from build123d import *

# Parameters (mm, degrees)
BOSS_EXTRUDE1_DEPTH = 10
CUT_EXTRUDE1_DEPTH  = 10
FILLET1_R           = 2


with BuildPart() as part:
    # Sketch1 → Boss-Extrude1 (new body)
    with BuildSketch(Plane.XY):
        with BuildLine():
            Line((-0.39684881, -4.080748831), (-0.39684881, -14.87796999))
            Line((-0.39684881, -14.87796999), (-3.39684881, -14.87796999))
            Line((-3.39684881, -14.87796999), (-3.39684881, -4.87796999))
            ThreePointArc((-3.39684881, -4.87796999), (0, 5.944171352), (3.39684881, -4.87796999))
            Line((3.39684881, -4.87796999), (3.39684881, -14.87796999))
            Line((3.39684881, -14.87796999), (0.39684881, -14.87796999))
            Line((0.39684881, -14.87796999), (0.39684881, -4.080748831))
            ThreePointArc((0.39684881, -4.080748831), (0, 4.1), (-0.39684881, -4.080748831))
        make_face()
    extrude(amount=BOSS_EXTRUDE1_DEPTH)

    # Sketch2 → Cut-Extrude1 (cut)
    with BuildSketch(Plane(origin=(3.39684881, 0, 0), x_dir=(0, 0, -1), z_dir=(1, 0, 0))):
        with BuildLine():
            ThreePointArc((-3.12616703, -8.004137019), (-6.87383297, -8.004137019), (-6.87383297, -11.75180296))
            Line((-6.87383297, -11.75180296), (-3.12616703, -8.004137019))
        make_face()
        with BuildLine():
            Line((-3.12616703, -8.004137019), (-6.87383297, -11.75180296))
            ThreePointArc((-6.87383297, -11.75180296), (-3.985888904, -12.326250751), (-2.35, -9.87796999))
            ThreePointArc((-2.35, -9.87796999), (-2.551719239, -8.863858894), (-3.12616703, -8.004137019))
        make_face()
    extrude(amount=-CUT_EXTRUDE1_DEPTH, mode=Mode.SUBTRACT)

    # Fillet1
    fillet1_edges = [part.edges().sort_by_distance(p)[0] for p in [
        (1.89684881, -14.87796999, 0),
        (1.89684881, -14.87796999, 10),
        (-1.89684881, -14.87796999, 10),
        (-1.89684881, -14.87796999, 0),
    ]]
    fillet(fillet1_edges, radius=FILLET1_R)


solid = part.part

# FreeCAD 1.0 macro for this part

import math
import FreeCAD as App
import Part
import Sketcher

V = App.Vector


def edges_at(feature, points):
    """Names of the edges that pass closest to the given points."""
    edges = feature.Shape.Edges
    near = lambda p: min(range(len(edges)), key=lambda i: edges[i].distToShape(Part.Vertex(*p))[0])
    return sorted({f"Edge{near(p) + 1}" for p in points})

doc = App.newDocument("Part")
body = doc.addObject("PartDesign::Body", "Body")

sketch1 = doc.addObject("Sketcher::SketchObject", "Sketch")
body.addObject(sketch1)
sketch1.AttachmentSupport = (doc.XY_Plane, [""])
sketch1.MapMode = "FlatFace"
sketch1.addGeometry([
    Part.LineSegment(V(-0.396849, -14.87797, 0), V(-0.396849, -4.080749, 0)),
    Part.ArcOfCircle(Part.Circle(V(0, 0, 0), V(0, 0, 1), 4.1), math.radians(-84.445508), math.radians(264.445508)),
    Part.LineSegment(V(0.396849, -4.080749, 0), V(0.396849, -14.87797, 0)),
    Part.LineSegment(V(0.396849, -14.87797, 0), V(3.396849, -14.87797, 0)),
    Part.LineSegment(V(3.396849, -14.87797, 0), V(3.396849, -4.87797, 0)),
    Part.ArcOfCircle(Part.Circle(V(0, 0, 0), V(0, 0, 1), 5.944171), math.radians(-55.147987), math.radians(235.147987)),
    Part.LineSegment(V(-3.396849, -4.87797, 0), V(-3.396849, -14.87797, 0)),
    Part.LineSegment(V(-3.396849, -14.87797, 0), V(-0.396849, -14.87797, 0)),
], False)
sketch1.addConstraint([
    Sketcher.Constraint("Coincident", 0, 2, 1, 2),
    Sketcher.Constraint("Coincident", 1, 1, 2, 1),
    Sketcher.Constraint("Coincident", 2, 2, 3, 1),
    Sketcher.Constraint("Coincident", 3, 2, 4, 1),
    Sketcher.Constraint("Coincident", 4, 2, 5, 1),
    Sketcher.Constraint("Coincident", 5, 2, 6, 1),
    Sketcher.Constraint("Coincident", 6, 2, 7, 1),
    Sketcher.Constraint("Coincident", 7, 2, 0, 1),
    Sketcher.Constraint("Vertical", 0),
    Sketcher.Constraint("Vertical", 2),
    Sketcher.Constraint("Horizontal", 3),
    Sketcher.Constraint("Vertical", 4),
    Sketcher.Constraint("Vertical", 6),
    Sketcher.Constraint("Horizontal", 7),
    Sketcher.Constraint("Coincident", 1, 3, -1, 1),
    Sketcher.Constraint("Coincident", 5, 3, -1, 1),
    Sketcher.Constraint("Symmetric", 3, 2, 6, 2, -2),
    Sketcher.Constraint("Horizontal", 0, 2, 1, 1),
    Sketcher.Constraint("Radius", 1, 4.1),
    Sketcher.Constraint("DistanceX", 3, 1, 3, 2, 3.0),
    Sketcher.Constraint("DistanceY", 4, 1, 4, 2, 10.0),
    Sketcher.Constraint("Radius", 5, 5.944171),
    Sketcher.Constraint("DistanceY", 0, 1, 0, 2, 10.797221),
])
pad1 = doc.addObject("PartDesign::Pad", "Pad")
body.addObject(pad1)
pad1.Profile = sketch1
pad1.Length = 10

sketch2 = doc.addObject("Sketcher::SketchObject", "Sketch001")
body.addObject(sketch2)
sketch2.AttachmentSupport = (doc.YZ_Plane, [""])
sketch2.MapMode = "FlatFace"
sketch2.AttachmentOffset = App.Placement(V(0, 0, 3.396849), App.Rotation())
sketch2.addGeometry([
    Part.ArcOfCircle(Part.Circle(V(-9.87797, 5, 0), V(0, 0, 1), 2.65), math.radians(-45), math.radians(135)),
    Part.ArcOfCircle(Part.Circle(V(-9.87797, 5, 0), V(0, 0, 1), 2.65), math.radians(135), math.radians(270)),
    Part.ArcOfCircle(Part.Circle(V(-9.87797, 5, 0), V(0, 0, 1), 2.65), math.radians(-90), math.radians(-45)),
], False)
sketch2.addConstraint([
    Sketcher.Constraint("Tangent", 0, 2, 1, 1),
    Sketcher.Constraint("Tangent", 1, 2, 2, 1),
    Sketcher.Constraint("Tangent", 2, 2, 0, 1),
    Sketcher.Constraint("Vertical", 2, 3, 1, 2),
    Sketcher.Constraint("Radius", 0, 2.65),
    Sketcher.Constraint("DistanceY", -1, 1, 0, 3, 5.0),
    Sketcher.Constraint("DistanceX", 0, 3, -1, 1, 9.87797),
    Sketcher.Constraint("DistanceX", 0, 2, -1, 1, 11.751803),
    Sketcher.Constraint("DistanceX", 2, 2, -1, 1, 8.004137),
])
pocket1 = doc.addObject("PartDesign::Pocket", "Pocket")
body.addObject(pocket1)
pocket1.Profile = sketch2
pocket1.Length = 10
doc.recompute()

fillet = doc.addObject("PartDesign::Fillet", "Fillet")
body.addObject(fillet)
fillet.Base = (pocket1, edges_at(pocket1, [
    (1.897, -14.878, 0),
    (1.897, -14.878, 10),
    (-1.897, -14.878, 10),
    (-1.897, -14.878, 0),
]))
fillet.Radius = 2

doc.recompute()
